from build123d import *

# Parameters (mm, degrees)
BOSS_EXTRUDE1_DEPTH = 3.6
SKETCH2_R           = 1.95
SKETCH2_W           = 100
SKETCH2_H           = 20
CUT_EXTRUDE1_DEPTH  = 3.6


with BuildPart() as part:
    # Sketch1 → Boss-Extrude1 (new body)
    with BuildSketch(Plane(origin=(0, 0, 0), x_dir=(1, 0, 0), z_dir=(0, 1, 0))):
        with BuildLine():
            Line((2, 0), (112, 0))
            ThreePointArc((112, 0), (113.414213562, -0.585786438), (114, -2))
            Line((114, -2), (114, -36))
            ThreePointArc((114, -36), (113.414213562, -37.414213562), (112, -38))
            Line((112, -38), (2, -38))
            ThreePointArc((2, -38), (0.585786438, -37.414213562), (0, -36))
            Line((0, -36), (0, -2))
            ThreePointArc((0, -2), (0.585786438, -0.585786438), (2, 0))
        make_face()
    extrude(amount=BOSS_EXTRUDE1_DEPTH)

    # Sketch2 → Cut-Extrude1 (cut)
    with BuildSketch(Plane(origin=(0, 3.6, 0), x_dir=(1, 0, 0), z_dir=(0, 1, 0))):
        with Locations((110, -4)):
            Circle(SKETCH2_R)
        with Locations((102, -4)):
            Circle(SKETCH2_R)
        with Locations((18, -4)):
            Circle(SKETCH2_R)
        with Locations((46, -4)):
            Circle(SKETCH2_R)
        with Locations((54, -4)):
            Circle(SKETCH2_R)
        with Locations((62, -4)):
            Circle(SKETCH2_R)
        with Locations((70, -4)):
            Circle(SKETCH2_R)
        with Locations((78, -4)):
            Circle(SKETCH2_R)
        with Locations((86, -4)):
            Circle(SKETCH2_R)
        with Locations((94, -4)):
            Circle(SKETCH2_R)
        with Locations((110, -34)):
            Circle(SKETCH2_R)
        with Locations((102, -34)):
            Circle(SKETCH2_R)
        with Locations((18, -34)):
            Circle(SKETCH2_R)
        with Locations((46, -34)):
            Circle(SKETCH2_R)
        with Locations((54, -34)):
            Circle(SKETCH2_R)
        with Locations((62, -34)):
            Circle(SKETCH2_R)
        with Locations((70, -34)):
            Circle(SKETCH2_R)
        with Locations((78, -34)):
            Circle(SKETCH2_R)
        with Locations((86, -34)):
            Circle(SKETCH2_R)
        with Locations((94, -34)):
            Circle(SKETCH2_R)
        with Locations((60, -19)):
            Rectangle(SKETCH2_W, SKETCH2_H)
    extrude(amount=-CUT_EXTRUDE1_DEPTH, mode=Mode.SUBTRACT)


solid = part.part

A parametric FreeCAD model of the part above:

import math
import FreeCAD as App
import Part
import Sketcher
from FreeCAD import Vector
Q = App.Units.Quantity


def add_polygon(sketch, points):
    """Adds a closed chain of lines whose ends are joined by coincident constraints."""
    first, n = sketch.GeometryCount, len(points)
    for a, b in zip(points, points[1:] + points[:1]):
        sketch.addGeometry(Part.LineSegment(App.Vector(*a, 0), App.Vector(*b, 0)), False)
    for i in range(n):
        sketch.addConstraint(Sketcher.Constraint("Coincident", first + i, 2, first + (i + 1) % n, 1))

doc = App.newDocument("Part")
params = doc.addObject("Spreadsheet::Sheet", "Params")
for row, (alias, value) in enumerate([
    ("sketch1_radius", "2 mm"),
    ("sketch1_width", "110 mm"),
    ("sketch1_height", "34 mm"),
    ("pad1_length", "3.6 mm"),
    ("sketch2_diameter", "3.9 mm"),
    ("sketch2_width", "100 mm"),
    ("sketch2_height", "20 mm"),
    ("pocket1_length", "3.6 mm"),
], start=1):
    params.set(f"A{row}", alias)
    params.set(f"B{row}", "=" + value)
    params.setAlias(f"B{row}", alias)

body = doc.addObject("PartDesign::Body", "Body")

# Sketch on XZ plane
sketch1 = body.newObject("Sketcher::SketchObject", "Sketch")
sketch1.AttachmentSupport = (doc.getObject("XZ_Plane"), [""])
sketch1.MapMode = "FlatFace"
sketch1.addGeometry(Part.LineSegment(Vector(112, 0, 0), Vector(2, 0, 0)), False)
sketch1.addGeometry(Part.ArcOfCircle(Part.Circle(Vector(2, 2, 0), Vector(0, 0, 1), 2), math.radians(-180), math.radians(-90)), False)
sketch1.addGeometry(Part.LineSegment(Vector(0, 2, 0), Vector(0, 36, 0)), False)
sketch1.addGeometry(Part.ArcOfCircle(Part.Circle(Vector(2, 36, 0), Vector(0, 0, 1), 2), math.radians(90), math.radians(180)), False)
sketch1.addGeometry(Part.LineSegment(Vector(2, 38, 0), Vector(112, 38, 0)), False)
sketch1.addGeometry(Part.ArcOfCircle(Part.Circle(Vector(112, 36, 0), Vector(0, 0, 1), 2), math.radians(0), math.radians(90)), False)
sketch1.addGeometry(Part.LineSegment(Vector(114, 36, 0), Vector(114, 2, 0)), False)
sketch1.addGeometry(Part.ArcOfCircle(Part.Circle(Vector(112, 2, 0), Vector(0, 0, 1), 2), math.radians(-90), math.radians(0)), False)
sketch1.addConstraint(Sketcher.Constraint("Tangent", 0, 2, 1, 2))
sketch1.addConstraint(Sketcher.Constraint("Tangent", 1, 1, 2, 1))
sketch1.addConstraint(Sketcher.Constraint("Tangent", 2, 2, 3, 2))
sketch1.addConstraint(Sketcher.Constraint("Tangent", 3, 1, 4, 1))
sketch1.addConstraint(Sketcher.Constraint("Tangent", 4, 2, 5, 2))
sketch1.addConstraint(Sketcher.Constraint("Tangent", 5, 1, 6, 1))
sketch1.addConstraint(Sketcher.Constraint("Tangent", 6, 2, 7, 2))
sketch1.addConstraint(Sketcher.Constraint("Tangent", 7, 1, 0, 1))
sketch1.addConstraint(Sketcher.Constraint("Horizontal", 0))
sketch1.addConstraint(Sketcher.Constraint("Vertical", 2))
sketch1.addConstraint(Sketcher.Constraint("Horizontal", 4))
sketch1.addConstraint(Sketcher.Constraint("Vertical", 6))
sketch1.addConstraint(Sketcher.Constraint("Equal", 1, 3))
sketch1.addConstraint(Sketcher.Constraint("Equal", 3, 5))
sketch1.addConstraint(Sketcher.Constraint("Equal", 5, 7))
sketch1.addConstraint(Sketcher.Constraint("PointOnObject", 0, 2, -1))
sketch1.addConstraint(Sketcher.Constraint("PointOnObject", 1, 1, -2))
sketch1.addConstraint(Sketcher.Constraint("Radius", 1, Q("2 mm")))
sketch1.addConstraint(Sketcher.Constraint("DistanceX", 0, 2, 0, 1, Q("110 mm")))
sketch1.addConstraint(Sketcher.Constraint("DistanceY", 2, 1, 2, 2, Q("34 mm")))
sketch1.setExpression("Constraints[17]", "Params.sketch1_radius")
sketch1.setExpression("Constraints[18]", "Params.sketch1_width")
sketch1.setExpression("Constraints[19]", "Params.sketch1_height")
pad1 = body.newObject("PartDesign::Pad", "Pad")
pad1.Profile = sketch1
pad1.setExpression("Length", "Params.pad1_length")
pad1.Reversed = True

# Sketch on XZ plane
sketch2 = body.newObject("Sketcher::SketchObject", "Sketch001")
sketch2.AttachmentSupport = (doc.getObject("XZ_Plane"), [""])
sketch2.MapMode = "FlatFace"
sketch2.AttachmentOffset = App.Placement(Vector(0, 0, -3.6), App.Rotation())
sketch2.addGeometry(Part.Circle(Vector(110, 4, 0), Vector(0, 0, 1), 1.9), False)  # 0
sketch2.addGeometry(Part.Circle(Vector(102, 4, 0), Vector(0, 0, 1), 1.9), False)  # 1
sketch2.addGeometry(Part.Circle(Vector(18, 4, 0), Vector(0, 0, 1), 1.9), False)  # 2
sketch2.addGeometry(Part.Circle(Vector(46, 4, 0), Vector(0, 0, 1), 1.9), False)  # 3
sketch2.addGeometry(Part.Circle(Vector(54, 4, 0), Vector(0, 0, 1), 1.9), False)  # 4
sketch2.addGeometry(Part.Circle(Vector(62, 4, 0), Vector(0, 0, 1), 1.9), False)  # 5
sketch2.addGeometry(Part.Circle(Vector(70, 4, 0), Vector(0, 0, 1), 1.9), False)  # 6
sketch2.addGeometry(Part.Circle(Vector(78, 4, 0), Vector(0, 0, 1), 1.9), False)  # 7
sketch2.addGeometry(Part.Circle(Vector(86, 4, 0), Vector(0, 0, 1), 1.9), False)  # 8
sketch2.addGeometry(Part.Circle(Vector(94, 4, 0), Vector(0, 0, 1), 1.9), False)  # 9
sketch2.addGeometry(Part.Circle(Vector(110, 34, 0), Vector(0, 0, 1), 1.9), False)  # 10
sketch2.addGeometry(Part.Circle(Vector(102, 34, 0), Vector(0, 0, 1), 1.9), False)  # 11
sketch2.addGeometry(Part.Circle(Vector(18, 34, 0), Vector(0, 0, 1), 1.9), False)  # 12
sketch2.addGeometry(Part.Circle(Vector(46, 34, 0), Vector(0, 0, 1), 1.9), False)  # 13
sketch2.addGeometry(Part.Circle(Vector(54, 34, 0), Vector(0, 0, 1), 1.9), False)  # 14
sketch2.addGeometry(Part.Circle(Vector(62, 34, 0), Vector(0, 0, 1), 1.9), False)  # 15
sketch2.addGeometry(Part.Circle(Vector(70, 34, 0), Vector(0, 0, 1), 1.9), False)  # 16
sketch2.addGeometry(Part.Circle(Vector(78, 34, 0), Vector(0, 0, 1), 1.9), False)  # 17
sketch2.addGeometry(Part.Circle(Vector(86, 34, 0), Vector(0, 0, 1), 1.9), False)  # 18
sketch2.addGeometry(Part.Circle(Vector(94, 34, 0), Vector(0, 0, 1), 1.9), False)  # 19
add_polygon(sketch2, [(10, 9), (10, 29), (110, 29), (110, 9)])  # lines 20-23
sketch2.addConstraint(Sketcher.Constraint("Vertical", 20))
sketch2.addConstraint(Sketcher.Constraint("Horizontal", 21))
sketch2.addConstraint(Sketcher.Constraint("Vertical", 22))
sketch2.addConstraint(Sketcher.Constraint("Horizontal", 23))
sketch2.addConstraint(Sketcher.Constraint("Equal", 0, 1))
sketch2.addConstraint(Sketcher.Constraint("Equal", 1, 2))
sketch2.addConstraint(Sketcher.Constraint("Equal", 2, 3))
sketch2.addConstraint(Sketcher.Constraint("Equal", 3, 4))
sketch2.addConstraint(Sketcher.Constraint("Equal", 4, 5))
sketch2.addConstraint(Sketcher.Constraint("Equal", 5, 6))
sketch2.addConstraint(Sketcher.Constraint("Equal", 6, 7))
sketch2.addConstraint(Sketcher.Constraint("Equal", 7, 8))
sketch2.addConstraint(Sketcher.Constraint("Equal", 8, 9))
sketch2.addConstraint(Sketcher.Constraint("Equal", 9, 10))
sketch2.addConstraint(Sketcher.Constraint("Equal", 10, 11))
sketch2.addConstraint(Sketcher.Constraint("Equal", 11, 12))
sketch2.addConstraint(Sketcher.Constraint("Equal", 12, 13))
sketch2.addConstraint(Sketcher.Constraint("Equal", 13, 14))
sketch2.addConstraint(Sketcher.Constraint("Equal", 14, 15))
sketch2.addConstraint(Sketcher.Constraint("Equal", 15, 16))
sketch2.addConstraint(Sketcher.Constraint("Equal", 16, 17))
sketch2.addConstraint(Sketcher.Constraint("Equal", 17, 18))
sketch2.addConstraint(Sketcher.Constraint("Equal", 18, 19))
sketch2.addConstraint(Sketcher.Constraint("Horizontal", 0, 3, 1, 3))
sketch2.addConstraint(Sketcher.Constraint("Horizontal", 1, 3, 2, 3))
sketch2.addConstraint(Sketcher.Constraint("Horizontal", 2, 3, 3, 3))
sketch2.addConstraint(Sketcher.Constraint("Horizontal", 3, 3, 4, 3))
sketch2.addConstraint(Sketcher.Constraint("Horizontal", 4, 3, 5, 3))
sketch2.addConstraint(Sketcher.Constraint("Horizontal", 5, 3, 6, 3))
sketch2.addConstraint(Sketcher.Constraint("Horizontal", 6, 3, 7, 3))
sketch2.addConstraint(Sketcher.Constraint("Horizontal", 7, 3, 8, 3))
sketch2.addConstraint(Sketcher.Constraint("Horizontal", 8, 3, 9, 3))
sketch2.addConstraint(Sketcher.Constraint("Horizontal", 10, 3, 11, 3))
sketch2.addConstraint(Sketcher.Constraint("Horizontal", 11, 3, 12, 3))
sketch2.addConstraint(Sketcher.Constraint("Horizontal", 12, 3, 13, 3))
sketch2.addConstraint(Sketcher.Constraint("Horizontal", 13, 3, 14, 3))
sketch2.addConstraint(Sketcher.Constraint("Horizontal", 14, 3, 15, 3))
sketch2.addConstraint(Sketcher.Constraint("Horizontal", 15, 3, 16, 3))
sketch2.addConstraint(Sketcher.Constraint("Horizontal", 16, 3, 17, 3))
sketch2.addConstraint(Sketcher.Constraint("Horizontal", 17, 3, 18, 3))
sketch2.addConstraint(Sketcher.Constraint("Horizontal", 18, 3, 19, 3))
sketch2.addConstraint(Sketcher.Constraint("Vertical", 0, 3, 10, 3))
sketch2.addConstraint(Sketcher.Constraint("Vertical", 1, 3, 11, 3))
sketch2.addConstraint(Sketcher.Constraint("Vertical", 2, 3, 12, 3))
sketch2.addConstraint(Sketcher.Constraint("Vertical", 3, 3, 13, 3))
sketch2.addConstraint(Sketcher.Constraint("Vertical", 4, 3, 14, 3))
sketch2.addConstraint(Sketcher.Constraint("Vertical", 5, 3, 15, 3))
sketch2.addConstraint(Sketcher.Constraint("Vertical", 6, 3, 16, 3))
sketch2.addConstraint(Sketcher.Constraint("Vertical", 7, 3, 17, 3))
sketch2.addConstraint(Sketcher.Constraint("Vertical", 8, 3, 18, 3))
sketch2.addConstraint(Sketcher.Constraint("Vertical", 9, 3, 19, 3))
sketch2.addConstraint(Sketcher.Constraint("Vertical", 10, 3, 21, 2))
sketch2.addConstraint(Sketcher.Constraint("Diameter", 0, Q("3.9 mm")))
sketch2.addConstraint(Sketcher.Constraint("DistanceX", 21, 1, 21, 2, Q("100 mm")))
sketch2.addConstraint(Sketcher.Constraint("DistanceY", 20, 1, 20, 2, Q("20 mm")))
sketch2.addConstraint(Sketcher.Constraint("DistanceX", -1, 1, 0, 3, Q("110 mm")))
sketch2.addConstraint(Sketcher.Constraint("DistanceY", -1, 1, 0, 3, Q("4 mm")))
sketch2.addConstraint(Sketcher.Constraint("DistanceX", -1, 1, 1, 3, Q("102 mm")))
sketch2.addConstraint(Sketcher.Constraint("DistanceX", -1, 1, 2, 3, Q("18 mm")))
sketch2.addConstraint(Sketcher.Constraint("DistanceX", -1, 1, 3, 3, Q("46 mm")))
sketch2.addConstraint(Sketcher.Constraint("DistanceX", -1, 1, 4, 3, Q("54 mm")))
sketch2.addConstraint(Sketcher.Constraint("DistanceX", -1, 1, 5, 3, Q("62 mm")))
sketch2.addConstraint(Sketcher.Constraint("DistanceX", -1, 1, 6, 3, Q("70 mm")))
sketch2.addConstraint(Sketcher.Constraint("DistanceX", -1, 1, 7, 3, Q("78 mm")))
sketch2.addConstraint(Sketcher.Constraint("DistanceX", -1, 1, 8, 3, Q("86 mm")))
sketch2.addConstraint(Sketcher.Constraint("DistanceX", -1, 1, 9, 3, Q("94 mm")))
sketch2.addConstraint(Sketcher.Constraint("DistanceY", -1, 1, 10, 3, Q("34 mm")))
sketch2.addConstraint(Sketcher.Constraint("DistanceY", -1, 1, 20, 2, Q("29 mm")))
sketch2.setExpression("Constraints[56]", "Params.sketch2_diameter")
sketch2.setExpression("Constraints[57]", "Params.sketch2_width")
sketch2.setExpression("Constraints[58]", "Params.sketch2_height")
pocket1 = body.newObject("PartDesign::Pocket", "Pocket")
pocket1.Profile = sketch2
pocket1.setExpression("Length", "Params.pocket1_length")
pocket1.Reversed = True

doc.recompute()
